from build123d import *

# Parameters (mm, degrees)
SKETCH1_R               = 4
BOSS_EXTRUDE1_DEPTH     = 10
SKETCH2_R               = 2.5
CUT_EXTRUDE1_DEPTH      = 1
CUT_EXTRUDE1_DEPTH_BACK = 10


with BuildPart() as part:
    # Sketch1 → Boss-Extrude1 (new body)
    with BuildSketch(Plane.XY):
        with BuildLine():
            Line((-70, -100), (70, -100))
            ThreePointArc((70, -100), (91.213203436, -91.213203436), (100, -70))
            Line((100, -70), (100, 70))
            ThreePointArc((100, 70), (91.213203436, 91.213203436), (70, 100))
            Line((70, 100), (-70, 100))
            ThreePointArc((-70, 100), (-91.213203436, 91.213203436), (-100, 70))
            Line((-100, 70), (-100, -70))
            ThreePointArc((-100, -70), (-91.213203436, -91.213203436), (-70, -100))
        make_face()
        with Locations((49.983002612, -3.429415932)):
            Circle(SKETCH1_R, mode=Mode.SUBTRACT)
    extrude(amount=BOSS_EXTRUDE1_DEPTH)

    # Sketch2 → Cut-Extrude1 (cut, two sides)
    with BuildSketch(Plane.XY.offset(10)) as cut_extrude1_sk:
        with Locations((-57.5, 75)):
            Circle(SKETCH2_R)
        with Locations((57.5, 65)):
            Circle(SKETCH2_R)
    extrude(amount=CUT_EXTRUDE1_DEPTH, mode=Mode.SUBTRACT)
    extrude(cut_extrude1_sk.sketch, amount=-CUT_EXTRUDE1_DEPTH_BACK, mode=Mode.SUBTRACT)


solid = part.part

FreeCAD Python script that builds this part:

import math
import FreeCAD as App
import Part
import Sketcher

V = App.Vector
Q = App.Units.Quantity

doc = App.newDocument("Part")
body = doc.addObject("PartDesign::Body", "Body")

# Sketch on XY plane
sketch1 = doc.addObject("Sketcher::SketchObject", "Sketch")
body.addObject(sketch1)
sketch1.AttachmentSupport = (doc.XY_Plane, [""])
sketch1.MapMode = "FlatFace"
sketch1.addGeometry([
    Part.LineSegment(V(-70, -100, 0), V(70, -100, 0)),  # 0
    Part.ArcOfCircle(Part.Circle(V(70, -70, 0), V(0, 0, 1), 30), math.radians(-90), math.radians(0)),  # 1
    Part.LineSegment(V(100, -70, 0), V(100, 70, 0)),  # 2
    Part.ArcOfCircle(Part.Circle(V(70, 70, 0), V(0, 0, 1), 30), math.radians(0), math.radians(90)),  # 3
    Part.LineSegment(V(70, 100, 0), V(-70, 100, 0)),  # 4
    Part.ArcOfCircle(Part.Circle(V(-70, 70, 0), V(0, 0, 1), 30), math.radians(90), math.radians(180)),  # 5
    Part.LineSegment(V(-100, 70, 0), V(-100, -70, 0)),  # 6
    Part.ArcOfCircle(Part.Circle(V(-70, -70, 0), V(0, 0, 1), 30), math.radians(180), math.radians(270)),  # 7
    Part.Circle(V(50, -3.4, 0), V(0, 0, 1), 4),  # 8
], False)
sketch1.addConstraint([
    Sketcher.Constraint("Tangent", 0, 2, 1, 1),
    Sketcher.Constraint("Tangent", 1, 2, 2, 1),
    Sketcher.Constraint("Tangent", 2, 2, 3, 1),
    Sketcher.Constraint("Tangent", 3, 2, 4, 1),
    Sketcher.Constraint("Tangent", 4, 2, 5, 1),
    Sketcher.Constraint("Tangent", 5, 2, 6, 1),
    Sketcher.Constraint("Tangent", 6, 2, 7, 1),
    Sketcher.Constraint("Tangent", 7, 2, 0, 1),
    Sketcher.Constraint("Horizontal", 0),
    Sketcher.Constraint("Vertical", 2),
    Sketcher.Constraint("Horizontal", 4),
    Sketcher.Constraint("Vertical", 6),
    Sketcher.Constraint("Equal", 1, 3),
    Sketcher.Constraint("Equal", 3, 5),
    Sketcher.Constraint("Equal", 5, 7),
    Sketcher.Constraint("Symmetric", 1, 3, 5, 3, -1, 1),
    Sketcher.Constraint("Equal", 4, 2),
    Sketcher.Constraint("Diameter", 8, Q("8 mm")),
    Sketcher.Constraint("Radius", 1, Q("30 mm")),
    Sketcher.Constraint("DistanceX", 0, 1, 0, 2, Q("140 mm")),
    Sketcher.Constraint("DistanceX", -1, 1, 8, 3, Q("49.983003 mm")),
    Sketcher.Constraint("DistanceY", 8, 3, -1, 1, Q("3.429416 mm")),
])
pad1 = doc.addObject("PartDesign::Pad", "Pad")
body.addObject(pad1)
pad1.Profile = sketch1
pad1.Length = 10

# Sketch on XY plane
sketch2 = doc.addObject("Sketcher::SketchObject", "Sketch001")
body.addObject(sketch2)
sketch2.AttachmentSupport = (doc.XY_Plane, [""])
sketch2.MapMode = "FlatFace"
sketch2.AttachmentOffset = App.Placement(V(0, 0, 10), App.Rotation())
sketch2.addGeometry([
    Part.Circle(V(-57.5, 75, 0), V(0, 0, 1), 2.5),
    Part.Circle(V(57.5, 65, 0), V(0, 0, 1), 2.5),
], False)
sketch2.addConstraint([
    Sketcher.Constraint("Equal", 0, 1),
    Sketcher.Constraint("Diameter", 0, Q("5 mm")),
    Sketcher.Constraint("DistanceY", -1, 1, 0, 3, Q("75 mm")),
    Sketcher.Constraint("DistanceY", -1, 1, 1, 3, Q("65 mm")),
    Sketcher.Constraint("DistanceX", 0, 3, 1, 3, Q("115 mm")),
    Sketcher.Constraint("DistanceX", 0, 3, -1, 1, Q("57.5 mm")),
])
pocket1 = doc.addObject("PartDesign::Pocket", "Pocket")
body.addObject(pocket1)
pocket1.Profile = sketch2
pocket1.Type = "ThroughAll"
pocket1.Midplane = True

doc.recompute()
